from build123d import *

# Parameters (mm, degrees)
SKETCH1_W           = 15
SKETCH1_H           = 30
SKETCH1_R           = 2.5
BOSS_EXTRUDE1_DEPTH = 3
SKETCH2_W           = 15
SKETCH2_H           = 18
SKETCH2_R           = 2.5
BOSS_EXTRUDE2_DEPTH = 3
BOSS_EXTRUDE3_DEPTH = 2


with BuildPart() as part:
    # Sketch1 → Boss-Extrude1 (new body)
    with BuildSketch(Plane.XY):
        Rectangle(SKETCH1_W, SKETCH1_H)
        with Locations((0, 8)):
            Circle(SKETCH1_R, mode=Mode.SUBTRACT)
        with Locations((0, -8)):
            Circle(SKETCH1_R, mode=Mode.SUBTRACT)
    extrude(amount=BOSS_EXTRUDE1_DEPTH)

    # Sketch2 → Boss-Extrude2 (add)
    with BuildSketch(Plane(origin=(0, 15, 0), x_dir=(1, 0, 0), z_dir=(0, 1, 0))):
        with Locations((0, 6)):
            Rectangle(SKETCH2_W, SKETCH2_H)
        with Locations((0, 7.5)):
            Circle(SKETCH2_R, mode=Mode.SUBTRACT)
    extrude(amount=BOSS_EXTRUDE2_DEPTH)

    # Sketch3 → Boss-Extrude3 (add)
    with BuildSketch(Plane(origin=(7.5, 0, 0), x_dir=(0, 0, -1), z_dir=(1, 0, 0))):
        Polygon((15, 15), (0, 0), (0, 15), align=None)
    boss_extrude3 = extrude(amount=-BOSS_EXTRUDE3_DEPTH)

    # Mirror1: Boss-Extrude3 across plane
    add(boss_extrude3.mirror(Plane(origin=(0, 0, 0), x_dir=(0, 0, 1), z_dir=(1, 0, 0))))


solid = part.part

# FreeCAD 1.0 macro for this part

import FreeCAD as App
import Part
import Sketcher
Q = App.Units.Quantity


def add_polygon(sketch, points):
    """Adds a closed chain of lines whose ends are joined by coincident constraints."""
    first, n = sketch.GeometryCount, len(points)
    for a, b in zip(points, points[1:] + points[:1]):
        sketch.addGeometry(Part.LineSegment(App.Vector(*a, 0), App.Vector(*b, 0)), False)
    for i in range(n):
        sketch.addConstraint(Sketcher.Constraint("Coincident", first + i, 2, first + (i + 1) % n, 1))

doc = App.newDocument("Part")
body = doc.addObject("PartDesign::Body", "Body")

# Sketch on XY plane
sketch1 = doc.addObject("Sketcher::SketchObject", "Sketch")
body.addObject(sketch1)
sketch1.AttachmentSupport = (doc.XY_Plane, [""])
sketch1.MapMode = "FlatFace"
add_polygon(sketch1, [(-7.5, 15), (-7.5, -15), (7.5, -15), (7.5, 15)])  # lines 0-3
sketch1.addGeometry(Part.Circle(App.Vector(0, -8, 0), App.Vector(0, 0, 1), 2.5), False)  # 4
sketch1.addGeometry(Part.Circle(App.Vector(0, 8, 0), App.Vector(0, 0, 1), 2.5), False)  # 5
sketch1.addConstraint([
    Sketcher.Constraint("Vertical", 0),
    Sketcher.Constraint("Horizontal", 1),
    Sketcher.Constraint("Vertical", 2),
    Sketcher.Constraint("Horizontal", 3),
    Sketcher.Constraint("Equal", 4, 5),
    Sketcher.Constraint("Symmetric", 4, 3, 5, 3, -1, 1),
    Sketcher.Constraint("Symmetric", 0, 2, 2, 2, -1, 1),
    Sketcher.Constraint("PointOnObject", 4, 3, -2),
    Sketcher.Constraint("Diameter", 4, Q("5 mm")),
    Sketcher.Constraint("DistanceX", 1, 1, 1, 2, Q("15 mm")),
    Sketcher.Constraint("DistanceY", 0, 2, 0, 1, Q("30 mm")),
    Sketcher.Constraint("DistanceY", 4, 3, -1, 1, Q("8 mm")),
])
pad1 = doc.addObject("PartDesign::Pad", "Pad")
body.addObject(pad1)
pad1.Profile = sketch1
pad1.Length = 3

# Sketch on XZ plane
sketch2 = doc.addObject("Sketcher::SketchObject", "Sketch001")
body.addObject(sketch2)
sketch2.AttachmentSupport = (doc.XZ_Plane, [""])
sketch2.MapMode = "FlatFace"
sketch2.AttachmentOffset = App.Placement(App.Vector(0, 0, -15), App.Rotation())
add_polygon(sketch2, [(-7.5, -15), (-7.5, 3), (7.5, 3), (7.5, -15)])  # lines 0-3
sketch2.addGeometry(Part.Circle(App.Vector(0, -7.5, 0), App.Vector(0, 0, 1), 2.5), False)  # 4
sketch2.addConstraint([
    Sketcher.Constraint("Vertical", 0),
    Sketcher.Constraint("Horizontal", 1),
    Sketcher.Constraint("Vertical", 2),
    Sketcher.Constraint("Horizontal", 3),
    Sketcher.Constraint("PointOnObject", 4, 3, -2),
    Sketcher.Constraint("Diameter", 4, Q("5 mm")),
    Sketcher.Constraint("DistanceX", 1, 1, 1, 2, Q("15 mm")),
    Sketcher.Constraint("DistanceY", 0, 1, 0, 2, Q("18 mm")),
    Sketcher.Constraint("DistanceY", -1, 1, 0, 2, Q("3 mm")),
    Sketcher.Constraint("DistanceY", 4, 3, -1, 1, Q("7.5 mm")),
    Sketcher.Constraint("DistanceX", 0, 2, -1, 1, Q("7.5 mm")),
])
pad2 = doc.addObject("PartDesign::Pad", "Pad001")
body.addObject(pad2)
pad2.Profile = sketch2
pad2.Length = 3
pad2.Reversed = True

# Sketch on YZ plane
sketch3 = doc.addObject("Sketcher::SketchObject", "Sketch002")
body.addObject(sketch3)
sketch3.AttachmentSupport = (doc.YZ_Plane, [""])
sketch3.MapMode = "FlatFace"
sketch3.AttachmentOffset = App.Placement(App.Vector(0, 0, 7.5), App.Rotation())
add_polygon(sketch3, [(0, 0), (15, -15), (15, 0)])  # lines 0-2
sketch3.addConstraint([
    Sketcher.Constraint("Vertical", 1),
    Sketcher.Constraint("Horizontal", 2),
    Sketcher.Constraint("Coincident", 2, 2, -1, 1),
    Sketcher.Constraint("Equal", 2, 1),
    Sketcher.Constraint("DistanceX", 2, 2, 2, 1, Q("15 mm")),
])
pad3 = doc.addObject("PartDesign::Pad", "Pad002")
body.addObject(pad3)
pad3.Profile = sketch3
pad3.Length = 2
pad3.Reversed = True
doc.recompute()

mirrored = doc.addObject("PartDesign::Mirrored", "Mirrored")
body.addObject(mirrored)
mirrored.Originals = [pad3]
mirrored.MirrorPlane = (doc.YZ_Plane, [""])
body.Tip = mirrored

doc.recompute()
